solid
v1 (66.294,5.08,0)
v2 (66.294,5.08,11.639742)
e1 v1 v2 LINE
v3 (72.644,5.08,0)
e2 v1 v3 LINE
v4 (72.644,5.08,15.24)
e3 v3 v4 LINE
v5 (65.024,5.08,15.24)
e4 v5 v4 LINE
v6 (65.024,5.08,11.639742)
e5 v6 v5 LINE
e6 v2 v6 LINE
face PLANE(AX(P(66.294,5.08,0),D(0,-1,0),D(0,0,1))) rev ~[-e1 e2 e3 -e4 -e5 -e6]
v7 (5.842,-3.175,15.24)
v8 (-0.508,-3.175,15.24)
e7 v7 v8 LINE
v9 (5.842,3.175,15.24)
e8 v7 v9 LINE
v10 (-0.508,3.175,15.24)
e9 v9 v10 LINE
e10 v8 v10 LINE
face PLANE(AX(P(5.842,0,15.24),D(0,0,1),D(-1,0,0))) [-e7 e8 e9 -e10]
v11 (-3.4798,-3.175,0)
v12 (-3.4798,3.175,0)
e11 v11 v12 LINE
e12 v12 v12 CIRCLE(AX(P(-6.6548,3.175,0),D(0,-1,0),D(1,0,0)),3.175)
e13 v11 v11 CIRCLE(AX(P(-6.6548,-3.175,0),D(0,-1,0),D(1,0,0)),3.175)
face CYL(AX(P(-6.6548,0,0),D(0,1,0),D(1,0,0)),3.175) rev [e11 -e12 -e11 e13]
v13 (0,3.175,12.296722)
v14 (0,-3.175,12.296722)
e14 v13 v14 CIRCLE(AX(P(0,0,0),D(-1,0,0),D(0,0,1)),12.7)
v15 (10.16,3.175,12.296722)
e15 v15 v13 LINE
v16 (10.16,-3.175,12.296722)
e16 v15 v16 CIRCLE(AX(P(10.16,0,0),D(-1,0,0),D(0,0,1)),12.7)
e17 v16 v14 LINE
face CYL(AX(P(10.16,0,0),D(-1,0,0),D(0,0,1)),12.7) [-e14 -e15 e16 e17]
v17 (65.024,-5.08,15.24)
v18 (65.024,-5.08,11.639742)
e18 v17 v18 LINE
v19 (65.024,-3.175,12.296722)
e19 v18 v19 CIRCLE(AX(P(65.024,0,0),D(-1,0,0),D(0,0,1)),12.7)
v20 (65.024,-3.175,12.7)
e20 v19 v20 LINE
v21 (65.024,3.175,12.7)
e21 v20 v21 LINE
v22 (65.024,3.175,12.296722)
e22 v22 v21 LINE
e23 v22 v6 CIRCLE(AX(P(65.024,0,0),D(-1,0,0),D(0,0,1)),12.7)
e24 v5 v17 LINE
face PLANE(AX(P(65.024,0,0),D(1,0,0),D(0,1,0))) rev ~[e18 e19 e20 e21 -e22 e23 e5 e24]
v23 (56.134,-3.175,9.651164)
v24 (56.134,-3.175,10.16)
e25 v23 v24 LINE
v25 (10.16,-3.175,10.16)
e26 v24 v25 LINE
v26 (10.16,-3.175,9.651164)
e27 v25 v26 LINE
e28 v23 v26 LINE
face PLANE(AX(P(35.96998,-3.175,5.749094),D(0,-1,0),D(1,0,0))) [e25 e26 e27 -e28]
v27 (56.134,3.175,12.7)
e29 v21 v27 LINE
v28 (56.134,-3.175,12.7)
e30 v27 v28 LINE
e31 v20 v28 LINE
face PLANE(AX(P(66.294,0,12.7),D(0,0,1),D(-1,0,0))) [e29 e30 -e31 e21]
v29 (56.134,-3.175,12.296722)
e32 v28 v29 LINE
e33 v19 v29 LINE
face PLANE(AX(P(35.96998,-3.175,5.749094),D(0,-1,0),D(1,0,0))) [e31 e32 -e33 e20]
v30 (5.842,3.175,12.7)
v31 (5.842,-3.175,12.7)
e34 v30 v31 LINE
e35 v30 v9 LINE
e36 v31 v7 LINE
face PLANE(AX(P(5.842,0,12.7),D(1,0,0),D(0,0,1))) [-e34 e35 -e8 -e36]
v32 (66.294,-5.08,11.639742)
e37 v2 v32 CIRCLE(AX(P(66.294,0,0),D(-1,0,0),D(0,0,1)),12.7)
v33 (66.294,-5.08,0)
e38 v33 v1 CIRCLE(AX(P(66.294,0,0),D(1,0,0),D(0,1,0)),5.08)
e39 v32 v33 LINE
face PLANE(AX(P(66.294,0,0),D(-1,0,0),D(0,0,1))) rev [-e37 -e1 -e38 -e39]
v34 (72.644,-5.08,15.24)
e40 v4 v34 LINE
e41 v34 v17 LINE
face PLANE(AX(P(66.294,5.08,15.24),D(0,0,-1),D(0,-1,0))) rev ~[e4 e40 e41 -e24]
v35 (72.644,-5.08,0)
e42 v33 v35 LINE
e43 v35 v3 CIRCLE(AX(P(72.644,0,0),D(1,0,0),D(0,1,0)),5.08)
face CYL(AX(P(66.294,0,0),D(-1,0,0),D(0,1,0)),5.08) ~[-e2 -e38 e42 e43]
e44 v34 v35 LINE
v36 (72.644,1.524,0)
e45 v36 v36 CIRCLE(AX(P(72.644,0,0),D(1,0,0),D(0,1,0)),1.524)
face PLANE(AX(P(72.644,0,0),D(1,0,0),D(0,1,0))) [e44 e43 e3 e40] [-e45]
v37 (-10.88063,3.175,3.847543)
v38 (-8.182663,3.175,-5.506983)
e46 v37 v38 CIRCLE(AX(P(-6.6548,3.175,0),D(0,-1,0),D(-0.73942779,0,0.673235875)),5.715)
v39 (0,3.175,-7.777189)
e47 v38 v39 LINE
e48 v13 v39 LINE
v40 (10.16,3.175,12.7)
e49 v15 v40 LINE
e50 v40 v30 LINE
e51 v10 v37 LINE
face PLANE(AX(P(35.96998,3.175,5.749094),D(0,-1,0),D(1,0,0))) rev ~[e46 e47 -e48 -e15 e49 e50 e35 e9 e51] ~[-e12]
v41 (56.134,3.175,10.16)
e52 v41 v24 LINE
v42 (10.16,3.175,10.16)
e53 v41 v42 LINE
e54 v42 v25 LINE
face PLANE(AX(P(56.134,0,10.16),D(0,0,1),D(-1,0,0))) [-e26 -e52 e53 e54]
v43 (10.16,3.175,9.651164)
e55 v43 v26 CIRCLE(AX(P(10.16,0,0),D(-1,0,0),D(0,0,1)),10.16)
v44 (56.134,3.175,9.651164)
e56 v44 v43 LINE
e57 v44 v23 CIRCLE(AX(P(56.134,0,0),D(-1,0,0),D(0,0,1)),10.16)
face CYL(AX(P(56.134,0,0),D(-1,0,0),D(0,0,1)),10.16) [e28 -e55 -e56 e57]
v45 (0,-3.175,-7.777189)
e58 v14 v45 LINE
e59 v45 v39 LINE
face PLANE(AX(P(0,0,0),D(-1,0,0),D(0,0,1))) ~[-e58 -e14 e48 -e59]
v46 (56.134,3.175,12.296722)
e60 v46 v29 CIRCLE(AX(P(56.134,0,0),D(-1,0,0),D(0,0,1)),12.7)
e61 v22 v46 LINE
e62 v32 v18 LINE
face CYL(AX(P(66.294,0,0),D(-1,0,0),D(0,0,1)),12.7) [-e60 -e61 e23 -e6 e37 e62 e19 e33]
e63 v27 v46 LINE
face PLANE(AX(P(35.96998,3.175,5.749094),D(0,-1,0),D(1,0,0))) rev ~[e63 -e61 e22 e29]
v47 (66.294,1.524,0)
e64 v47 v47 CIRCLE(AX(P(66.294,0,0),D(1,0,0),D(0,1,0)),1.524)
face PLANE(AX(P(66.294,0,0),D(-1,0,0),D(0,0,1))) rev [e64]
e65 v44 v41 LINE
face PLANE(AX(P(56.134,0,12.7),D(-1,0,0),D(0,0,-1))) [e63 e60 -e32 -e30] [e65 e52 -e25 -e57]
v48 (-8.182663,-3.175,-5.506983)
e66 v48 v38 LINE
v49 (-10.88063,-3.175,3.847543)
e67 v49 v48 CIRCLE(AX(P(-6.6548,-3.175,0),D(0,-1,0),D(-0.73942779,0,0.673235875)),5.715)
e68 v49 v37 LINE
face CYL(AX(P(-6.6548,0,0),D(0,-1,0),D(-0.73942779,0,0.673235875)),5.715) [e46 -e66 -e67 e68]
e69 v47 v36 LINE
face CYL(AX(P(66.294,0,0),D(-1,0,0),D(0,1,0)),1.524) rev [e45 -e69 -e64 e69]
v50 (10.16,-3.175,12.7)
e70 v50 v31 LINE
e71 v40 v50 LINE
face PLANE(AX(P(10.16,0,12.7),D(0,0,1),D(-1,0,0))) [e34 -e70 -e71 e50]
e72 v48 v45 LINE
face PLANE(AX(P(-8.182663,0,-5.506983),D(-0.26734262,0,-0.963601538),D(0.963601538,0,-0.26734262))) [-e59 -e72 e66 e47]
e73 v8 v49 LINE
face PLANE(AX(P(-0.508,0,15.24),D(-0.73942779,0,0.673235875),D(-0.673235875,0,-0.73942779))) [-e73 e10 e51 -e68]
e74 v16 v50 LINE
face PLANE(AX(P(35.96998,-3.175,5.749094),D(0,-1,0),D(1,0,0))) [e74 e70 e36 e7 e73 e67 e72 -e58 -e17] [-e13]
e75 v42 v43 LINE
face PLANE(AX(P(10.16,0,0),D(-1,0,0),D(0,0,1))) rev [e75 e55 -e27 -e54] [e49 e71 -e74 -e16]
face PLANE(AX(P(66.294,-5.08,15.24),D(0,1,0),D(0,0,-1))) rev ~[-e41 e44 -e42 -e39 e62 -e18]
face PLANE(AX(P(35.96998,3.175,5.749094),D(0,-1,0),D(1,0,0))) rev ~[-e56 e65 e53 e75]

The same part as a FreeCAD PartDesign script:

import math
import FreeCAD as App
import Part
import Sketcher

V = App.Vector
Q = App.Units.Quantity


def add_polygon(sketch, points):
    """Adds a closed chain of lines whose ends are joined by coincident constraints."""
    first, n = sketch.GeometryCount, len(points)
    for a, b in zip(points, points[1:] + points[:1]):
        sketch.addGeometry(Part.LineSegment(App.Vector(*a, 0), App.Vector(*b, 0)), False)
    for i in range(n):
        sketch.addConstraint(Sketcher.Constraint("Coincident", first + i, 2, first + (i + 1) % n, 1))

doc = App.newDocument("Part")
body = doc.addObject("PartDesign::Body", "Body")

sketch1 = body.newObject("Sketcher::SketchObject", "Sketch")
sketch1.AttachmentSupport = (doc.getObject("XZ_Plane"), [""])
sketch1.MapMode = "FlatFace"
add_polygon(sketch1, [(66.294, 0), (66.294, 12.7), (56.134, 12.7), (56.134, 10.16), (10.16, 10.16), (10.16, 12.7), (0, 12.7), (0, 0)])
sketch1.addConstraint([
    Sketcher.Constraint("Vertical", 0),
    Sketcher.Constraint("Horizontal", 1),
    Sketcher.Constraint("Vertical", 2),
    Sketcher.Constraint("Horizontal", 3),
    Sketcher.Constraint("Vertical", 4),
    Sketcher.Constraint("Horizontal", 5),
    Sketcher.Constraint("Vertical", 6),
    Sketcher.Constraint("Horizontal", 7),
    Sketcher.Constraint("Coincident", 6, 2, -1, 1),
    Sketcher.Constraint("Horizontal", 1, 2, 4, 2),
    Sketcher.Constraint("Equal", 1, 5),
    Sketcher.Constraint("DistanceX", 1, 2, 1, 1, Q("0.4 in")),
    Sketcher.Constraint("DistanceY", 0, 1, 0, 2, Q("0.5 in")),
    Sketcher.Constraint("DistanceY", 2, 2, 2, 1, Q("0.1 in")),
    Sketcher.Constraint("DistanceX", 3, 2, 3, 1, Q("1.81 in")),
])
revolution = body.newObject("PartDesign::Revolution", "Revolution")
revolution.Profile = sketch1
revolution.ReferenceAxis = (sketch1, ["H_Axis"])
revolution.Angle = 360

sketch2 = body.newObject("Sketcher::SketchObject", "Sketch001")
sketch2.AttachmentSupport = (doc.getObject("XZ_Plane"), [""])
sketch2.MapMode = "FlatFace"
sketch2.addGeometry([
    Part.LineSegment(V(66.294, 0, 0), V(66.294, 12.7, 0)),
    Part.LineSegment(V(66.294, 12.7, 0), V(56.134, 12.7, 0)),
    Part.LineSegment(V(56.134, 12.7, 0), V(56.134, 10.16, 0)),
    Part.LineSegment(V(56.134, 10.16, 0), V(10.16, 10.16, 0)),
    Part.LineSegment(V(10.16, 10.16, 0), V(10.16, 12.7, 0)),
    Part.LineSegment(V(10.16, 12.7, 0), V(5.842, 12.7, 0)),
    Part.LineSegment(V(5.842, 12.7, 0), V(5.842, 15.24, 0)),
    Part.LineSegment(V(5.842, 15.24, 0), V(-0.508, 15.24, 0)),
    Part.LineSegment(V(-0.508, 15.24, 0), V(-10.88063, 3.847543, 0)),
    Part.ArcOfCircle(Part.Circle(V(-6.6548, 0, 0), V(0, 0, 1), 5.715), math.radians(137.682695), math.radians(254.493802)),
    Part.LineSegment(V(-8.182663, -5.506983, 0), V(5.842, -9.398, 0)),
    Part.LineSegment(V(5.842, -9.398, 0), V(5.842, 0, 0)),
    Part.LineSegment(V(5.842, 0, 0), V(66.294, 0, 0)),
    Part.Circle(V(-6.6548, 0, 0), V(0, 0, 1), 3.175),
], False)
sketch2.addConstraint([
    Sketcher.Constraint("Coincident", 0, 2, 1, 1),
    Sketcher.Constraint("Coincident", 1, 2, 2, 1),
    Sketcher.Constraint("Coincident", 2, 2, 3, 1),
    Sketcher.Constraint("Coincident", 3, 2, 4, 1),
    Sketcher.Constraint("Coincident", 4, 2, 5, 1),
    Sketcher.Constraint("Coincident", 5, 2, 6, 1),
    Sketcher.Constraint("Coincident", 6, 2, 7, 1),
    Sketcher.Constraint("Coincident", 7, 2, 8, 1),
    Sketcher.Constraint("Tangent", 8, 2, 9, 1),
    Sketcher.Constraint("Tangent", 9, 2, 10, 1),
    Sketcher.Constraint("Coincident", 10, 2, 11, 1),
    Sketcher.Constraint("Coincident", 11, 2, 12, 1),
    Sketcher.Constraint("Coincident", 12, 2, 0, 1),
    Sketcher.Constraint("Vertical", 0),
    Sketcher.Constraint("Horizontal", 1),
    Sketcher.Constraint("Vertical", 2),
    Sketcher.Constraint("Horizontal", 3),
    Sketcher.Constraint("Vertical", 4),
    Sketcher.Constraint("Horizontal", 5),
    Sketcher.Constraint("Vertical", 6),
    Sketcher.Constraint("Horizontal", 7),
    Sketcher.Constraint("Vertical", 11),
    Sketcher.Constraint("Horizontal", 12),
    Sketcher.Constraint("Coincident", 13, 3, 9, 3),
    Sketcher.Constraint("PointOnObject", 9, 3, -1),
    Sketcher.Constraint("PointOnObject", 11, 2, -1),
    Sketcher.Constraint("Horizontal", 1, 2, 4, 2),
    Sketcher.Constraint("Vertical", 6, 2, 10, 2),
    Sketcher.Constraint("Equal", 4, 6),
    Sketcher.Constraint("Diameter", 13, Q("0.25 in")),
    Sketcher.Constraint("DistanceX", 1, 2, 1, 1, Q("0.4 in")),
    Sketcher.Constraint("DistanceY", 0, 1, 0, 2, Q("0.5 in")),
    Sketcher.Constraint("DistanceY", 2, 2, 2, 1, Q("0.1 in")),
    Sketcher.Constraint("Radius", 9, Q("0.225 in")),
    Sketcher.Constraint("DistanceX", 3, 2, 3, 1, Q("1.81 in")),
    Sketcher.Constraint("DistanceX", 5, 2, 5, 1, Q("0.17 in")),
    Sketcher.Constraint("DistanceX", 7, 2, 7, 1, Q("0.25 in")),
    Sketcher.Constraint("DistanceY", 11, 1, 11, 2, Q("0.37 in")),
    Sketcher.Constraint("DistanceX", -1, 1, 3, 2, Q("0.4 in")),
    Sketcher.Constraint("DistanceX", 9, 3, -1, 1, Q("0.262 in")),
])
pad1 = body.newObject("PartDesign::Pad", "Pad")
pad1.Profile = sketch2
pad1.Length = Q("0.25 in")
pad1.Midplane = True

sketch3 = body.newObject("Sketcher::SketchObject", "Sketch002")
sketch3.AttachmentSupport = (doc.getObject("YZ_Plane"), [""])
sketch3.MapMode = "FlatFace"
sketch3.AttachmentOffset = App.Placement(V(0, 0, 2.61 * 25.4), App.Rotation())
sketch3.addGeometry([
    Part.ArcOfCircle(Part.Circle(V(0, 0, 0), V(0, 0, 1), 5.08), math.radians(180), math.radians(360)),
    Part.LineSegment(V(5.08, 0, 0), V(5.08, 15.24, 0)),
    Part.LineSegment(V(5.08, 15.24, 0), V(-5.08, 15.24, 0)),
    Part.LineSegment(V(-5.08, 15.24, 0), V(-5.08, 0, 0)),
    Part.Circle(V(0, 0, 0), V(0, 0, 1), 1.524),
], False)
sketch3.addConstraint([
    Sketcher.Constraint("Tangent", 0, 2, 1, 1),
    Sketcher.Constraint("Coincident", 1, 2, 2, 1),
    Sketcher.Constraint("Coincident", 2, 2, 3, 1),
    Sketcher.Constraint("Tangent", 3, 2, 0, 1),
    Sketcher.Constraint("Vertical", 1),
    Sketcher.Constraint("Horizontal", 2),
    Sketcher.Constraint("Vertical", 3),
    Sketcher.Constraint("Coincident", 0, 3, -1, 1),
    Sketcher.Constraint("Coincident", 4, 3, -1, 1),
    Sketcher.Constraint("Radius", 0, Q("0.2 in")),
    Sketcher.Constraint("Diameter", 4, Q("0.12 in")),
    Sketcher.Constraint("DistanceY", 1, 1, 1, 2, Q("0.6 in")),
])
pad2 = body.newObject("PartDesign::Pad", "Pad001")
pad2.Profile = sketch3
pad2.Type = "TwoLengths"
pad2.Length = Q("0.05 in")
pad2.Length2 = Q("0.25 in")
pad2.Reversed = True

doc.recompute()
